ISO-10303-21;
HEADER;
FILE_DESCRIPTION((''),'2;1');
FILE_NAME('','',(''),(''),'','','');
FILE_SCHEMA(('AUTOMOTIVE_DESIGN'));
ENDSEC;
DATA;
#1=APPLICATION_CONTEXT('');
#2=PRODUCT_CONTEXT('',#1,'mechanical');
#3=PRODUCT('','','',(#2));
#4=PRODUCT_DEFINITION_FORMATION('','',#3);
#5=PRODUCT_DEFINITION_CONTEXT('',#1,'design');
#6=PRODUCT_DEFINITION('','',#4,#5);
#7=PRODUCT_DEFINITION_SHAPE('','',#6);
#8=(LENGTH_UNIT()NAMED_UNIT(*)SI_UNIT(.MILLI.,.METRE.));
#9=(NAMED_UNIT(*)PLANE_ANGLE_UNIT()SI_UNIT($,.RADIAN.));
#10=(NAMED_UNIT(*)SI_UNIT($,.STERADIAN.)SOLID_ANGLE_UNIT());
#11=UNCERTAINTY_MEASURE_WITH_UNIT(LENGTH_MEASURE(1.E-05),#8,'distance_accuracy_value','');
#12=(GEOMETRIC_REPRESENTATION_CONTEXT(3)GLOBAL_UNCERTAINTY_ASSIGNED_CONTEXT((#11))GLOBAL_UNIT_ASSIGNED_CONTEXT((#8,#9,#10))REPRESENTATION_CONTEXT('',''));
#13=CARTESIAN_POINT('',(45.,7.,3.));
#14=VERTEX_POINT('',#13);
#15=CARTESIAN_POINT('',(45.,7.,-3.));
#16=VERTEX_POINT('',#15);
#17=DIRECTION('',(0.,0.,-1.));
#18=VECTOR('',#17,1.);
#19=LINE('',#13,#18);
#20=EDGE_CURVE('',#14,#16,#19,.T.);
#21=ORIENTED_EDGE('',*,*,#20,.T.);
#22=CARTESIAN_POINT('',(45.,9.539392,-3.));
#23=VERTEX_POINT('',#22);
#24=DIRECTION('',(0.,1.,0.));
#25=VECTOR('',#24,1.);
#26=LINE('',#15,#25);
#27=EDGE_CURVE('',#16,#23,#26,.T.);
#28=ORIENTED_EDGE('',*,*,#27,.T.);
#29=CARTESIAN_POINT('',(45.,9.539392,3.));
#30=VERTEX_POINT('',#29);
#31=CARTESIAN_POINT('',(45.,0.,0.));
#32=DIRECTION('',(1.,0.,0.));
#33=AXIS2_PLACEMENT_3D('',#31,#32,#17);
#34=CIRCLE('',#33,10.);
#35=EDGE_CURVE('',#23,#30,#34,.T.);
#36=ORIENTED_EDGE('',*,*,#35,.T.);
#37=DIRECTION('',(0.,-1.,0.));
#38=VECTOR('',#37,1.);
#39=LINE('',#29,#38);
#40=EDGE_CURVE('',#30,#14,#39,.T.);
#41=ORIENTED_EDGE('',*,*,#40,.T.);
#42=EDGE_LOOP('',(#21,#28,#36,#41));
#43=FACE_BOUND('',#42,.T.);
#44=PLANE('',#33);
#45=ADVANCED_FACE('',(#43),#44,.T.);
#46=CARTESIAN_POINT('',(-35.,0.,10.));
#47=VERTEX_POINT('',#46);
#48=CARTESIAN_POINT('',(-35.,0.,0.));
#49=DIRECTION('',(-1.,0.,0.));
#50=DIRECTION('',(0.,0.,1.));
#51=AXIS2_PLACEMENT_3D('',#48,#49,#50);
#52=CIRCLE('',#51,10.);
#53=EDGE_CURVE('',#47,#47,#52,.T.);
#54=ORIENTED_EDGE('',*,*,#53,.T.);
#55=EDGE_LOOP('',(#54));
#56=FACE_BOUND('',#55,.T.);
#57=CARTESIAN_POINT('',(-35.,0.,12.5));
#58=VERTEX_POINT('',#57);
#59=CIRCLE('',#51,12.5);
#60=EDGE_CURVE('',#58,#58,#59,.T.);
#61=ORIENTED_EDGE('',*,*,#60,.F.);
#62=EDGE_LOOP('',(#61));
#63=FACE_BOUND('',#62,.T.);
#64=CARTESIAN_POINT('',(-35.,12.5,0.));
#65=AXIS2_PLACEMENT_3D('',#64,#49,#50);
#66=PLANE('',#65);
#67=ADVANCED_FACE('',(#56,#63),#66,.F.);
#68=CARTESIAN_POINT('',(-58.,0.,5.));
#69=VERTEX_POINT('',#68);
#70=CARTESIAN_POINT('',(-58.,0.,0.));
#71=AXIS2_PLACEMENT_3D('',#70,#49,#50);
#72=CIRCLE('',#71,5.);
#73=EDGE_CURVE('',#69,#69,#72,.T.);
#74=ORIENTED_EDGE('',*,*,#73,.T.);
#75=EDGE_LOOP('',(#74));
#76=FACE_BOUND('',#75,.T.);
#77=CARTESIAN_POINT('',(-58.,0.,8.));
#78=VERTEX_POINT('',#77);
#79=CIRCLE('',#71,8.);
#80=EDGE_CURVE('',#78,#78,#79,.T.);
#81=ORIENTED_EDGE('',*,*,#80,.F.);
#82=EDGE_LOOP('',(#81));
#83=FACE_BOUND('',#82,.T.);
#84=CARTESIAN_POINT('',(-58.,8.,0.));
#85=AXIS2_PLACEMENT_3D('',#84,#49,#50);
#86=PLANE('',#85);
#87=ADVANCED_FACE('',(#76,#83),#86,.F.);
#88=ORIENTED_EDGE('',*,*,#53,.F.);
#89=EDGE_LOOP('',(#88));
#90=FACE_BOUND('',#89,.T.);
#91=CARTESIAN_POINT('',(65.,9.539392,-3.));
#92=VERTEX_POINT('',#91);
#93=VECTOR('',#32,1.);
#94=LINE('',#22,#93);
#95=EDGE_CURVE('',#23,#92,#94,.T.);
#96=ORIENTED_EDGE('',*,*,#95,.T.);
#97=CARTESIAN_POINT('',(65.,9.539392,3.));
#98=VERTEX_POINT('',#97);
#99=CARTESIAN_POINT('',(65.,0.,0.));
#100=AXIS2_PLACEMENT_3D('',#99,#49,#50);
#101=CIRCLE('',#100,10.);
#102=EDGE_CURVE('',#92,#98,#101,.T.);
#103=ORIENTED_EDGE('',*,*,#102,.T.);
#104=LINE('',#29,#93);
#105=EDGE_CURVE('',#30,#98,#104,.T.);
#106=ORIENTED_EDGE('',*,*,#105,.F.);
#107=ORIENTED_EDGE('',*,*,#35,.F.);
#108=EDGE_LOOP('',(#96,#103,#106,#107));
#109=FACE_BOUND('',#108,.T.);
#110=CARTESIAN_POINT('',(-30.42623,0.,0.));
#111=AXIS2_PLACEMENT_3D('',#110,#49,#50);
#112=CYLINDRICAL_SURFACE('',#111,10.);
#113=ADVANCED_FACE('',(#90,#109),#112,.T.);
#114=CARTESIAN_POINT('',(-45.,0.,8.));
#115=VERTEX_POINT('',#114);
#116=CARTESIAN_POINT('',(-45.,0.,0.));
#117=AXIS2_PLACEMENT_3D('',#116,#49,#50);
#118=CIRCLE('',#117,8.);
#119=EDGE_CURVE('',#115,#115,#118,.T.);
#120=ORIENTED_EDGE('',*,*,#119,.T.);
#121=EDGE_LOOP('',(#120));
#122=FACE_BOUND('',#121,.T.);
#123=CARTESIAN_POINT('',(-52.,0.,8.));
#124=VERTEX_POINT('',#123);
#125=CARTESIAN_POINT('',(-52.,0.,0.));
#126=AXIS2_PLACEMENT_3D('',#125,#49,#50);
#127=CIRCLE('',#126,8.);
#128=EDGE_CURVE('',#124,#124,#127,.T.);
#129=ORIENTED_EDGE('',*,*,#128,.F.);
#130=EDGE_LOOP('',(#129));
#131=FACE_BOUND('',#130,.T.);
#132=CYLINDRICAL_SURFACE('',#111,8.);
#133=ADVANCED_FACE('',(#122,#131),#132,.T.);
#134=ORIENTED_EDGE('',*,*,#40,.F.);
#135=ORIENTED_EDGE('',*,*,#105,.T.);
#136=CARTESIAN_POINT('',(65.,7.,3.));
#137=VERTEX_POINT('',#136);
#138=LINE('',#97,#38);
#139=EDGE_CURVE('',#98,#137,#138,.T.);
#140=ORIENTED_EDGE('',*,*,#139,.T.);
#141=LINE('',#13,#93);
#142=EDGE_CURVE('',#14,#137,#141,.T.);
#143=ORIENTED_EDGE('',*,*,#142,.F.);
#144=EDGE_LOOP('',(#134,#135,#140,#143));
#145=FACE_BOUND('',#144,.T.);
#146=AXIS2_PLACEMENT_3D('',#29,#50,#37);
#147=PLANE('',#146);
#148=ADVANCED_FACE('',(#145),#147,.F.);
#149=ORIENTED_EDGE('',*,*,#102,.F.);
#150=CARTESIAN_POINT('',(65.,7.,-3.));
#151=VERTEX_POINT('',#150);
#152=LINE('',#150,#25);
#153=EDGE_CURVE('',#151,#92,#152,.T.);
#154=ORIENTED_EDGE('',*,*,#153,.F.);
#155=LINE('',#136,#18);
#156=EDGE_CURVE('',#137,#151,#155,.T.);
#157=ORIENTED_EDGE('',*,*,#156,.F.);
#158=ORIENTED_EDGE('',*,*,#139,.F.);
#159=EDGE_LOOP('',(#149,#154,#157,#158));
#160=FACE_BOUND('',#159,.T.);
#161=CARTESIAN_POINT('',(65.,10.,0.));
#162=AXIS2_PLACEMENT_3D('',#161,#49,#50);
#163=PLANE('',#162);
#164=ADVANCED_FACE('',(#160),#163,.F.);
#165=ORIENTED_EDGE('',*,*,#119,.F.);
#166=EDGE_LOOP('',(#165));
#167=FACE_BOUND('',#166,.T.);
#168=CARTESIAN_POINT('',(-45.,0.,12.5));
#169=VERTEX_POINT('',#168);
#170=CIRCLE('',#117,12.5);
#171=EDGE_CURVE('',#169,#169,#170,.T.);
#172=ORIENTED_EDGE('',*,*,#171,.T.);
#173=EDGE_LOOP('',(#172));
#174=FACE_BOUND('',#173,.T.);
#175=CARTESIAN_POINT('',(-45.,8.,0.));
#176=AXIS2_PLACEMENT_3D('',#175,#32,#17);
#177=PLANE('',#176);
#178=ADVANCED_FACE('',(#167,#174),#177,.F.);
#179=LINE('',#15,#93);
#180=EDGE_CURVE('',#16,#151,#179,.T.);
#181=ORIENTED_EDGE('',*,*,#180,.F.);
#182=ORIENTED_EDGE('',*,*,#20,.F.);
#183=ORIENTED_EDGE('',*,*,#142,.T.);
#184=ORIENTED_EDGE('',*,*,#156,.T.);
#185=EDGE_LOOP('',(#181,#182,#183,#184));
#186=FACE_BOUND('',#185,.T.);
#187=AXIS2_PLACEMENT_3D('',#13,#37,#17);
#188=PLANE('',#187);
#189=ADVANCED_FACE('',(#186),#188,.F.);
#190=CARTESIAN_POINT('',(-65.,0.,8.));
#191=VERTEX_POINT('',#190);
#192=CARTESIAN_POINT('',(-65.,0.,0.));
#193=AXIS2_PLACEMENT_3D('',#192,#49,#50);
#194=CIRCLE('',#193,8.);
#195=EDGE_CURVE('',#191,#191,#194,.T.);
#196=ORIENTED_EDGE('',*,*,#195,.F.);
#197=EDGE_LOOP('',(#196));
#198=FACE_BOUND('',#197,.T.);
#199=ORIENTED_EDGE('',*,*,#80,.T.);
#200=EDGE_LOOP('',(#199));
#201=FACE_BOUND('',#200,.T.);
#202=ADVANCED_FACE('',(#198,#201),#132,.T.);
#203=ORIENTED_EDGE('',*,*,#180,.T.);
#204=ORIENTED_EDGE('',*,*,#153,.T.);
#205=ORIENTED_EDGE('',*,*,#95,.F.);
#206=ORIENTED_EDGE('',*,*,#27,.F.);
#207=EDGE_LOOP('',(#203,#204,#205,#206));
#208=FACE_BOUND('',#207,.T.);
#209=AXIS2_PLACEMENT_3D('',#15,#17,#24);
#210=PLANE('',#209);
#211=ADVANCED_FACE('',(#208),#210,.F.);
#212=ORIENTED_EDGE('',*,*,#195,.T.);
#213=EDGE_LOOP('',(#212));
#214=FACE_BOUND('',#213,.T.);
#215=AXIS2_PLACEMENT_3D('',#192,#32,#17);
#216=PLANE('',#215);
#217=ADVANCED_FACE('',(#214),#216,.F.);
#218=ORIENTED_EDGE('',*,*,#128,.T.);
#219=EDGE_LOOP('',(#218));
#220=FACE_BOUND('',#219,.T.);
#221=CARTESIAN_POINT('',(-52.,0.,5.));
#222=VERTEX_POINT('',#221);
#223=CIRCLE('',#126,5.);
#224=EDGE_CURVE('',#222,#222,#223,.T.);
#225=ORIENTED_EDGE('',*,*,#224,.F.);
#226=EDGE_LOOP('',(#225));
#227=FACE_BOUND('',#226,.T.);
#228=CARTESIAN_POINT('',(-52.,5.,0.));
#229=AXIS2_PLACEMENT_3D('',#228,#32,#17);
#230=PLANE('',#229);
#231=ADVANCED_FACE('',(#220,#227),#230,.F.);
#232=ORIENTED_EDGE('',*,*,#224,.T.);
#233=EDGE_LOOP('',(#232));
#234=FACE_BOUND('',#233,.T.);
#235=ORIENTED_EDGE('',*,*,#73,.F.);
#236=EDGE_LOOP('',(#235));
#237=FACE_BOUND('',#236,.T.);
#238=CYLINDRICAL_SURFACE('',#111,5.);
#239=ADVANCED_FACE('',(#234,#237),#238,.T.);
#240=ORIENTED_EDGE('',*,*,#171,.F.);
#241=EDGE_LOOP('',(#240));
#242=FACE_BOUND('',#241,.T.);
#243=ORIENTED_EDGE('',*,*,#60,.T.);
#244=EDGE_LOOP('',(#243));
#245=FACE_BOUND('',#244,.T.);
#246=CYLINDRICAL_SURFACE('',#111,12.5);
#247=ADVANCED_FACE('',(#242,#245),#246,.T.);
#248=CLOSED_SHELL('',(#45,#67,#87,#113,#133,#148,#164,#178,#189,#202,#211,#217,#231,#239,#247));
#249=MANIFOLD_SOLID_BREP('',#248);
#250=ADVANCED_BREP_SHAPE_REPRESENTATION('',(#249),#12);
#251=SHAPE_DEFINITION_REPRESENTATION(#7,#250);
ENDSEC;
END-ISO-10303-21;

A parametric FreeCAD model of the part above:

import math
import FreeCAD as App
import Part
import Sketcher


def add_polygon(sketch, points):
    """Adds a closed chain of lines whose ends are joined by coincident constraints."""
    first, n = sketch.GeometryCount, len(points)
    for a, b in zip(points, points[1:] + points[:1]):
        sketch.addGeometry(Part.LineSegment(App.Vector(*a, 0), App.Vector(*b, 0)), False)
    for i in range(n):
        sketch.addConstraint(Sketcher.Constraint("Coincident", first + i, 2, first + (i + 1) % n, 1))

doc = App.newDocument("Part")
params = doc.addObject("Spreadsheet::Sheet", "Params")
for row, (alias, value) in enumerate([
    ("sketch1_width", "130 mm"),
    ("sketch1_width2", "100 mm"),
    ("sketch1_width3", "10 mm"),
    ("sketch1_width4", "7 mm"),
    ("sketch1_height", "8 mm"),
    ("revolution_angle", "360 deg"),
    ("sketch2_radius", "10 mm"),
    ("sketch2_height", "6 mm"),
    ("pocket1_length", "20 mm"),
], start=1):
    params.set(f"A{row}", alias)
    params.set(f"B{row}", "=" + value)
    params.setAlias(f"B{row}", alias)

body = doc.addObject("PartDesign::Body", "Body")

sketch1 = body.newObject("Sketcher::SketchObject", "Sketch")
sketch1.AttachmentSupport = (doc.getObject("XY_Plane"), [""])
sketch1.MapMode = "FlatFace"
add_polygon(sketch1, [(-65, 8), (-65, 0), (65, 0), (65, 10), (-35, 10), (-35, 12.5), (-45, 12.5), (-45, 8), (-52, 8), (-52, 5), (-58, 5), (-58, 8)])
sketch1.addConstraint([
    Sketcher.Constraint("Vertical", 0),
    Sketcher.Constraint("Horizontal", 1),
    Sketcher.Constraint("Vertical", 2),
    Sketcher.Constraint("Horizontal", 3),
    Sketcher.Constraint("Vertical", 4),
    Sketcher.Constraint("Horizontal", 5),
    Sketcher.Constraint("Vertical", 6),
    Sketcher.Constraint("Horizontal", 7),
    Sketcher.Constraint("Vertical", 8),
    Sketcher.Constraint("Horizontal", 9),
    Sketcher.Constraint("Vertical", 10),
    Sketcher.Constraint("Horizontal", 11),
    Sketcher.Constraint("Symmetric", 0, 2, 1, 2, -1, 1),
    Sketcher.Constraint("Horizontal", 7, 2, 10, 2),
    Sketcher.Constraint("Equal", 7, 11),
    Sketcher.Constraint("Equal", 5, 2),
    Sketcher.Constraint("DistanceX", 1, 1, 1, 2, 130.0),
    Sketcher.Constraint("DistanceX", 3, 2, 3, 1, 100.0),
    Sketcher.Constraint("DistanceX", 5, 2, 5, 1, 10.0),
    Sketcher.Constraint("DistanceX", 7, 2, 7, 1, 7.0),
    Sketcher.Constraint("DistanceY", 0, 2, 0, 1, 8.0),
    Sketcher.Constraint("DistanceY", 8, 2, 8, 1, 3.0),
    Sketcher.Constraint("DistanceY", 4, 1, 4, 2, 2.5),
])
sketch1.setExpression("Constraints[28]", "Params.sketch1_width")
sketch1.setExpression("Constraints[29]", "Params.sketch1_width2")
sketch1.setExpression("Constraints[30]", "Params.sketch1_width3")
sketch1.setExpression("Constraints[31]", "Params.sketch1_width4")
sketch1.setExpression("Constraints[32]", "Params.sketch1_height")
revolution = body.newObject("PartDesign::Revolution", "Revolution")
revolution.Profile = sketch1
revolution.ReferenceAxis = (sketch1, ["H_Axis"])
revolution.setExpression("Angle", "Params.revolution_angle")

sketch2 = body.newObject("Sketcher::SketchObject", "Sketch001")
sketch2.AttachmentSupport = (doc.getObject("YZ_Plane"), [""])
sketch2.MapMode = "FlatFace"
sketch2.AttachmentOffset = App.Placement(App.Vector(0, 0, 65), App.Rotation())
sketch2.addGeometry([
    Part.LineSegment(App.Vector(9.539392, 3, 0), App.Vector(7, 3, 0)),
    Part.LineSegment(App.Vector(7, 3, 0), App.Vector(7, -3, 0)),
    Part.LineSegment(App.Vector(7, -3, 0), App.Vector(9.539392, -3, 0)),
    Part.ArcOfCircle(Part.Circle(App.Vector(0, 0, 0), App.Vector(0, 0, 1), 10), math.radians(-17.457603), math.radians(17.457603)),
], False)
sketch2.addConstraint([
    Sketcher.Constraint("Coincident", 0, 2, 1, 1),
    Sketcher.Constraint("Coincident", 1, 2, 2, 1),
    Sketcher.Constraint("Coincident", 2, 2, 3, 1),
    Sketcher.Constraint("Coincident", 3, 2, 0, 1),
    Sketcher.Constraint("Horizontal", 0),
    Sketcher.Constraint("Vertical", 1),
    Sketcher.Constraint("Horizontal", 2),
    Sketcher.Constraint("Coincident", 3, 3, -1, 1),
    Sketcher.Constraint("Vertical", 2, 2, 3, 2),
    Sketcher.Constraint("Radius", 3, 10.0),
    Sketcher.Constraint("DistanceY", 1, 2, 1, 1, 6.0),
    Sketcher.Constraint("DistanceX", -1, 1, 0, 2, 7.0),
])
sketch2.setExpression("Constraints[9]", "Params.sketch2_radius")
sketch2.setExpression("Constraints[10]", "Params.sketch2_height")
pocket1 = body.newObject("PartDesign::Pocket", "Pocket")
pocket1.Profile = sketch2
pocket1.setExpression("Length", "Params.pocket1_length")

doc.recompute()
